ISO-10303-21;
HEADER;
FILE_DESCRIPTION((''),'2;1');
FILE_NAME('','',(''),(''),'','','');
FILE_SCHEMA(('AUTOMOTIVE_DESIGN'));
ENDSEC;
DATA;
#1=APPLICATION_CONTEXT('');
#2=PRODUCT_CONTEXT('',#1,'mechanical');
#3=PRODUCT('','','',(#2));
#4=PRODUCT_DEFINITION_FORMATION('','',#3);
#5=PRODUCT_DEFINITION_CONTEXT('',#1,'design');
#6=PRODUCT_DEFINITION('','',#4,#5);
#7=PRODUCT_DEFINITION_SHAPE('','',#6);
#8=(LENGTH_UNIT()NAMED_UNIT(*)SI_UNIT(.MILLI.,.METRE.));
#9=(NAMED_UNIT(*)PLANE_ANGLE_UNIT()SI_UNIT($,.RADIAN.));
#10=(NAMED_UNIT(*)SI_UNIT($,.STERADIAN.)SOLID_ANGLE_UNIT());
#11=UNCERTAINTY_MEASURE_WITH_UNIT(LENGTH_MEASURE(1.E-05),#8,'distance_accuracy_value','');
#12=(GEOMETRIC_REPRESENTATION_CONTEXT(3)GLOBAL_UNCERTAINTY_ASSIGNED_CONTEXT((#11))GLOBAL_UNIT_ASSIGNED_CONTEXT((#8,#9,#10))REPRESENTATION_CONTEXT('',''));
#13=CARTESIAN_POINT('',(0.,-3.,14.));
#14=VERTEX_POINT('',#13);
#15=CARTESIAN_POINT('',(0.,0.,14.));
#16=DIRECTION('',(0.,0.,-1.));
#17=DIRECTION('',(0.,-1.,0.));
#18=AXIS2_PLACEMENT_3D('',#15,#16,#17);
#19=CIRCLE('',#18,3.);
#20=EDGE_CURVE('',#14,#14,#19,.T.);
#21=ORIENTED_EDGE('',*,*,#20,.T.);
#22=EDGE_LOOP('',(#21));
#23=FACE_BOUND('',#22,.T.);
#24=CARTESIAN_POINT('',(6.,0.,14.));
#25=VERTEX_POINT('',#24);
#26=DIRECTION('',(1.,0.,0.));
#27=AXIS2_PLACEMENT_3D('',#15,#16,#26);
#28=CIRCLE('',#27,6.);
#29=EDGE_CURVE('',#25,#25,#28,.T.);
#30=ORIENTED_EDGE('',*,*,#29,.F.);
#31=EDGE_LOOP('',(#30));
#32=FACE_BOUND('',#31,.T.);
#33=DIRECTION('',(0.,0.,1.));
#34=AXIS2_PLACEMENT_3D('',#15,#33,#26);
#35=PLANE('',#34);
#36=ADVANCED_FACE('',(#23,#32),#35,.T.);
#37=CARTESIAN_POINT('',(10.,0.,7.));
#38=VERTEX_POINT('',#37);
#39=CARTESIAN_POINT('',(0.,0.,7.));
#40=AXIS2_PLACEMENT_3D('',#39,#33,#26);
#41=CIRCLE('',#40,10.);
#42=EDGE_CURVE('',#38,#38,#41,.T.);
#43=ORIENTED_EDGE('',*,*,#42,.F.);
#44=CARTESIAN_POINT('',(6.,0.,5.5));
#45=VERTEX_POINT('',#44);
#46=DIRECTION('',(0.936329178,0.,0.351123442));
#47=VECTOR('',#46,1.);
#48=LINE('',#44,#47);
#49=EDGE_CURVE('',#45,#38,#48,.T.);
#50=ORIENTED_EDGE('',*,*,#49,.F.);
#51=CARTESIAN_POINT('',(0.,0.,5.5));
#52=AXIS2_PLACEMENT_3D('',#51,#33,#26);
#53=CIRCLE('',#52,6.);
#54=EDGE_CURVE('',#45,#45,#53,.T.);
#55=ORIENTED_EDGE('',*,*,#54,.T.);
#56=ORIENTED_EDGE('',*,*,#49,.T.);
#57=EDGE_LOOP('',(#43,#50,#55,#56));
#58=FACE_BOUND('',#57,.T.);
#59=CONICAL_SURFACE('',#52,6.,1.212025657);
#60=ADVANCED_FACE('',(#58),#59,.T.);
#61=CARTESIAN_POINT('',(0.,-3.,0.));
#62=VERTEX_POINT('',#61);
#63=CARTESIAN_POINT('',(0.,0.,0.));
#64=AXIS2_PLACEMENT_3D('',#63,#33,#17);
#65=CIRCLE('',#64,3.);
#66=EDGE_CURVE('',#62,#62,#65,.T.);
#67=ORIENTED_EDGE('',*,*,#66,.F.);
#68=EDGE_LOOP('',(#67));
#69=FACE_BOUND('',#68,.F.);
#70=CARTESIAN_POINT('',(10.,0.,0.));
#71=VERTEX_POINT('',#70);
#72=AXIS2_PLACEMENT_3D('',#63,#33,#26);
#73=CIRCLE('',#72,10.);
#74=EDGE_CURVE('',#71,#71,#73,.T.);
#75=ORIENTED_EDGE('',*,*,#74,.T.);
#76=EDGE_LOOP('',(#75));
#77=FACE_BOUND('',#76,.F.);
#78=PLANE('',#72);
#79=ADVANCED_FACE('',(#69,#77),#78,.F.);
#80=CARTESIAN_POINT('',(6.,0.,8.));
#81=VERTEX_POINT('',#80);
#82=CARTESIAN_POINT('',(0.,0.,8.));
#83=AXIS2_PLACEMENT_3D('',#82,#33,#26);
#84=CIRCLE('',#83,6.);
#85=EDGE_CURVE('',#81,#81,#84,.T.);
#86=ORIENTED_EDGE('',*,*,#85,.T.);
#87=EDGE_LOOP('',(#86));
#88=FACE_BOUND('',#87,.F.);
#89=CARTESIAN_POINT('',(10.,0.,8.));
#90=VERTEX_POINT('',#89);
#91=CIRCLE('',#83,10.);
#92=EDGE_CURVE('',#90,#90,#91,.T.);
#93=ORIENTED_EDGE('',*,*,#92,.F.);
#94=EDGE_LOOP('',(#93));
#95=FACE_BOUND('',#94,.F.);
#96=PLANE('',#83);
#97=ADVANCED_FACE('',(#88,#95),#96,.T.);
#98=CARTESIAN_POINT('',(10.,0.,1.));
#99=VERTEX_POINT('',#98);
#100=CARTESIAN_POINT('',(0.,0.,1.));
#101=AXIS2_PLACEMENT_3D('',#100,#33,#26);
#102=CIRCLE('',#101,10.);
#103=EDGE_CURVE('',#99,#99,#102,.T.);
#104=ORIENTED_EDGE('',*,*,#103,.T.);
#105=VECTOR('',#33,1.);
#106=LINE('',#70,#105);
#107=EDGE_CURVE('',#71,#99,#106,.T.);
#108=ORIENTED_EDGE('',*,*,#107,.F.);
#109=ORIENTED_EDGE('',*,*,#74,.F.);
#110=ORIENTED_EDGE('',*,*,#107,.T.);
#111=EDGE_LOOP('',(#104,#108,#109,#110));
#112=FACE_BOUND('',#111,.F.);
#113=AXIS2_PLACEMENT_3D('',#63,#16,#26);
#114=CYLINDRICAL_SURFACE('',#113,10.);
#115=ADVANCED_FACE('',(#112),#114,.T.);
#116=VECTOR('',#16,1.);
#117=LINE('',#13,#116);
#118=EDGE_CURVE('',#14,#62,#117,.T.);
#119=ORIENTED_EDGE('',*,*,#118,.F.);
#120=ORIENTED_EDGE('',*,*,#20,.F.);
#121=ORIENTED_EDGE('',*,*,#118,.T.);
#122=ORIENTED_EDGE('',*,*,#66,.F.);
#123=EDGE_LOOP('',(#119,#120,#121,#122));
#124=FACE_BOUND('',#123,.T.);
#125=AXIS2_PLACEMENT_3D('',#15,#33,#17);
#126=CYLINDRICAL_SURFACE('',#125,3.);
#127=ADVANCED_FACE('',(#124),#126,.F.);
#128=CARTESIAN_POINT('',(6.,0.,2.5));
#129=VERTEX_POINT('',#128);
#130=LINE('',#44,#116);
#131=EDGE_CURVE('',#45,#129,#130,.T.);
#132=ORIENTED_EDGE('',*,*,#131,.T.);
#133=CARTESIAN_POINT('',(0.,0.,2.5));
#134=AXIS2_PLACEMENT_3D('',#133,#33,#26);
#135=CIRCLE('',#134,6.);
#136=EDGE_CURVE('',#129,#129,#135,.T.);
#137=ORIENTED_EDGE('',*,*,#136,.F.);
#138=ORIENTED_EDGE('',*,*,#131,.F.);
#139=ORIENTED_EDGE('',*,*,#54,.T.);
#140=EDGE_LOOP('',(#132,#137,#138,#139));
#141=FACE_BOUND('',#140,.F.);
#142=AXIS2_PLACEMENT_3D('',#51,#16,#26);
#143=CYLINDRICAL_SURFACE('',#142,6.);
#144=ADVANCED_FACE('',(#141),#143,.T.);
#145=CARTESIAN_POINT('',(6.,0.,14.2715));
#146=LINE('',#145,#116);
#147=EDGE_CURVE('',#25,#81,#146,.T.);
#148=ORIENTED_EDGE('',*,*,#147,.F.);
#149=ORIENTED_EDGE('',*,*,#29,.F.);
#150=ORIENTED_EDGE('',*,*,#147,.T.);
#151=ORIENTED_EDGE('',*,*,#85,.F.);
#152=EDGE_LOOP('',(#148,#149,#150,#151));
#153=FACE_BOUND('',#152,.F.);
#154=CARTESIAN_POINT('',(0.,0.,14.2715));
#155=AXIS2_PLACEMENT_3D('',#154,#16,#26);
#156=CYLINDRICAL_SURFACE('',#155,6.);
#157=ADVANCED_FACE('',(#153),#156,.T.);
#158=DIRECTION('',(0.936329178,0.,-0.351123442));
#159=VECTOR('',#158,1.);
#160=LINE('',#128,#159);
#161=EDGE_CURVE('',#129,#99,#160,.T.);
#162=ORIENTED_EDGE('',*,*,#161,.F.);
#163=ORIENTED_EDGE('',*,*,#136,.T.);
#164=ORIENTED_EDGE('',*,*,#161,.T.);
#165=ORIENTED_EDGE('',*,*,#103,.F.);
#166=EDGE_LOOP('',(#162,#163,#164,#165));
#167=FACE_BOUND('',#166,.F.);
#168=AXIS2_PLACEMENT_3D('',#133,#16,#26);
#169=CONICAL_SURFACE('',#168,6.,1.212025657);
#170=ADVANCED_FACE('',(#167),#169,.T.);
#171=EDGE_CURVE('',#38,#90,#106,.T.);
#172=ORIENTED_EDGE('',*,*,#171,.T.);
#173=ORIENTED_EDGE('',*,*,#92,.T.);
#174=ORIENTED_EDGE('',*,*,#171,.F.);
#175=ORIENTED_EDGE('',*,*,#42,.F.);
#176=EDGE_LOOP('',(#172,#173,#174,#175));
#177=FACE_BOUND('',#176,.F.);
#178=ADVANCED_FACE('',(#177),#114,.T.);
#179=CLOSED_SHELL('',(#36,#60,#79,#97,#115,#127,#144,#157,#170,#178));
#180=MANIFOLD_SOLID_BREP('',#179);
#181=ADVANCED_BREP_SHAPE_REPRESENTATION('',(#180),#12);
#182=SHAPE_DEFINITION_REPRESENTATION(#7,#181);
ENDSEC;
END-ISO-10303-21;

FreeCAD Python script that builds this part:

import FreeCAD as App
import Part
import Sketcher

V = App.Vector

doc = App.newDocument("Part")
body = doc.addObject("PartDesign::Body", "Body")

# Sketch on XY plane
sketch1 = body.newObject("Sketcher::SketchObject", "Sketch")
sketch1.AttachmentSupport = (doc.getObject("XY_Plane"), [""])
sketch1.MapMode = "FlatFace"
sketch1.addGeometry(Part.Circle(V(0, 0, 0), V(0, 0, 1), 10), False)
sketch1.addConstraint(Sketcher.Constraint("Coincident", 0, 3, -1, 1))
sketch1.addConstraint(Sketcher.Constraint("Diameter", 0, 20.0))
pad1 = body.newObject("PartDesign::Pad", "Pad")
pad1.Profile = sketch1
pad1.Length = 14

# Sketch on XZ plane
sketch2 = body.newObject("Sketcher::SketchObject", "Sketch001")
sketch2.AttachmentSupport = (doc.getObject("XZ_Plane"), [""])
sketch2.MapMode = "FlatFace"
sketch2.addGeometry(Part.LineSegment(V(10, 8, 0), V(10, 14.3, 0)), False)
sketch2.addGeometry(Part.LineSegment(V(10, 14.3, 0), V(6, 14.3, 0)), False)
sketch2.addGeometry(Part.LineSegment(V(6, 14.3, 0), V(6, 8, 0)), False)
sketch2.addGeometry(Part.LineSegment(V(6, 8, 0), V(10, 8, 0)), False)
sketch2.addGeometry(Part.LineSegment(V(10, 7, 0), V(6, 5.5, 0)), False)
sketch2.addGeometry(Part.LineSegment(V(6, 5.5, 0), V(6, 2.5, 0)), False)
sketch2.addGeometry(Part.LineSegment(V(6, 2.5, 0), V(10, 1, 0)), False)
sketch2.addGeometry(Part.LineSegment(V(10, 1, 0), V(10, 7, 0)), False)
sketch2.addConstraint(Sketcher.Constraint("Coincident", 0, 2, 1, 1))
sketch2.addConstraint(Sketcher.Constraint("Coincident", 1, 2, 2, 1))
sketch2.addConstraint(Sketcher.Constraint("Coincident", 2, 2, 3, 1))
sketch2.addConstraint(Sketcher.Constraint("Coincident", 3, 2, 0, 1))
sketch2.addConstraint(Sketcher.Constraint("Coincident", 4, 2, 5, 1))
sketch2.addConstraint(Sketcher.Constraint("Coincident", 5, 2, 6, 1))
sketch2.addConstraint(Sketcher.Constraint("Coincident", 6, 2, 7, 1))
sketch2.addConstraint(Sketcher.Constraint("Coincident", 7, 2, 4, 1))
sketch2.addConstraint(Sketcher.Constraint("Vertical", 0))
sketch2.addConstraint(Sketcher.Constraint("Horizontal", 1))
sketch2.addConstraint(Sketcher.Constraint("Vertical", 2))
sketch2.addConstraint(Sketcher.Constraint("Horizontal", 3))
sketch2.addConstraint(Sketcher.Constraint("Vertical", 5))
sketch2.addConstraint(Sketcher.Constraint("Vertical", 7))
sketch2.addConstraint(Sketcher.Constraint("Vertical", 2, 2, 4, 2))
sketch2.addConstraint(Sketcher.Constraint("Vertical", 3, 2, 6, 2))
sketch2.addConstraint(Sketcher.Constraint("Equal", 4, 6))
sketch2.addConstraint(Sketcher.Constraint("DistanceY", 7, 1, 7, 2, 6.0))
sketch2.addConstraint(Sketcher.Constraint("DistanceX", -1, 1, 1, 2, 6.0))
sketch2.addConstraint(Sketcher.Constraint("DistanceX", 1, 2, 1, 1, 4.0))
sketch2.addConstraint(Sketcher.Constraint("DistanceY", 5, 2, 5, 1, 3.0))
sketch2.addConstraint(Sketcher.Constraint("DistanceY", -1, 1, 2, 2, 8.0))
sketch2.addConstraint(Sketcher.Constraint("DistanceY", -1, 1, 6, 2, 1.0))
sketch2.addConstraint(Sketcher.Constraint("DistanceY", 0, 1, 0, 2, 6.2715))
groove = body.newObject("PartDesign::Groove", "Groove")
groove.Profile = sketch2
groove.ReferenceAxis = (sketch2, ["V_Axis"])
groove.Angle = 360

# Sketch on XY plane
sketch3 = body.newObject("Sketcher::SketchObject", "Sketch002")
sketch3.AttachmentSupport = (doc.getObject("XY_Plane"), [""])
sketch3.MapMode = "FlatFace"
sketch3.AttachmentOffset = App.Placement(V(0, 0, 14), App.Rotation())
sketch3.addGeometry(Part.Circle(V(0, 0, 0), V(0, 0, 1), 3), False)
sketch3.addConstraint(Sketcher.Constraint("Coincident", 0, 3, -1, 1))
sketch3.addConstraint(Sketcher.Constraint("Diameter", 0, 6.0))
doc.recompute()
hole = body.newObject("PartDesign::Hole", "Hole")
hole.Profile = sketch3
hole.ThreadType = "None"
hole.Diameter = 6
hole.DepthType = "ThroughAll"

doc.recompute()
